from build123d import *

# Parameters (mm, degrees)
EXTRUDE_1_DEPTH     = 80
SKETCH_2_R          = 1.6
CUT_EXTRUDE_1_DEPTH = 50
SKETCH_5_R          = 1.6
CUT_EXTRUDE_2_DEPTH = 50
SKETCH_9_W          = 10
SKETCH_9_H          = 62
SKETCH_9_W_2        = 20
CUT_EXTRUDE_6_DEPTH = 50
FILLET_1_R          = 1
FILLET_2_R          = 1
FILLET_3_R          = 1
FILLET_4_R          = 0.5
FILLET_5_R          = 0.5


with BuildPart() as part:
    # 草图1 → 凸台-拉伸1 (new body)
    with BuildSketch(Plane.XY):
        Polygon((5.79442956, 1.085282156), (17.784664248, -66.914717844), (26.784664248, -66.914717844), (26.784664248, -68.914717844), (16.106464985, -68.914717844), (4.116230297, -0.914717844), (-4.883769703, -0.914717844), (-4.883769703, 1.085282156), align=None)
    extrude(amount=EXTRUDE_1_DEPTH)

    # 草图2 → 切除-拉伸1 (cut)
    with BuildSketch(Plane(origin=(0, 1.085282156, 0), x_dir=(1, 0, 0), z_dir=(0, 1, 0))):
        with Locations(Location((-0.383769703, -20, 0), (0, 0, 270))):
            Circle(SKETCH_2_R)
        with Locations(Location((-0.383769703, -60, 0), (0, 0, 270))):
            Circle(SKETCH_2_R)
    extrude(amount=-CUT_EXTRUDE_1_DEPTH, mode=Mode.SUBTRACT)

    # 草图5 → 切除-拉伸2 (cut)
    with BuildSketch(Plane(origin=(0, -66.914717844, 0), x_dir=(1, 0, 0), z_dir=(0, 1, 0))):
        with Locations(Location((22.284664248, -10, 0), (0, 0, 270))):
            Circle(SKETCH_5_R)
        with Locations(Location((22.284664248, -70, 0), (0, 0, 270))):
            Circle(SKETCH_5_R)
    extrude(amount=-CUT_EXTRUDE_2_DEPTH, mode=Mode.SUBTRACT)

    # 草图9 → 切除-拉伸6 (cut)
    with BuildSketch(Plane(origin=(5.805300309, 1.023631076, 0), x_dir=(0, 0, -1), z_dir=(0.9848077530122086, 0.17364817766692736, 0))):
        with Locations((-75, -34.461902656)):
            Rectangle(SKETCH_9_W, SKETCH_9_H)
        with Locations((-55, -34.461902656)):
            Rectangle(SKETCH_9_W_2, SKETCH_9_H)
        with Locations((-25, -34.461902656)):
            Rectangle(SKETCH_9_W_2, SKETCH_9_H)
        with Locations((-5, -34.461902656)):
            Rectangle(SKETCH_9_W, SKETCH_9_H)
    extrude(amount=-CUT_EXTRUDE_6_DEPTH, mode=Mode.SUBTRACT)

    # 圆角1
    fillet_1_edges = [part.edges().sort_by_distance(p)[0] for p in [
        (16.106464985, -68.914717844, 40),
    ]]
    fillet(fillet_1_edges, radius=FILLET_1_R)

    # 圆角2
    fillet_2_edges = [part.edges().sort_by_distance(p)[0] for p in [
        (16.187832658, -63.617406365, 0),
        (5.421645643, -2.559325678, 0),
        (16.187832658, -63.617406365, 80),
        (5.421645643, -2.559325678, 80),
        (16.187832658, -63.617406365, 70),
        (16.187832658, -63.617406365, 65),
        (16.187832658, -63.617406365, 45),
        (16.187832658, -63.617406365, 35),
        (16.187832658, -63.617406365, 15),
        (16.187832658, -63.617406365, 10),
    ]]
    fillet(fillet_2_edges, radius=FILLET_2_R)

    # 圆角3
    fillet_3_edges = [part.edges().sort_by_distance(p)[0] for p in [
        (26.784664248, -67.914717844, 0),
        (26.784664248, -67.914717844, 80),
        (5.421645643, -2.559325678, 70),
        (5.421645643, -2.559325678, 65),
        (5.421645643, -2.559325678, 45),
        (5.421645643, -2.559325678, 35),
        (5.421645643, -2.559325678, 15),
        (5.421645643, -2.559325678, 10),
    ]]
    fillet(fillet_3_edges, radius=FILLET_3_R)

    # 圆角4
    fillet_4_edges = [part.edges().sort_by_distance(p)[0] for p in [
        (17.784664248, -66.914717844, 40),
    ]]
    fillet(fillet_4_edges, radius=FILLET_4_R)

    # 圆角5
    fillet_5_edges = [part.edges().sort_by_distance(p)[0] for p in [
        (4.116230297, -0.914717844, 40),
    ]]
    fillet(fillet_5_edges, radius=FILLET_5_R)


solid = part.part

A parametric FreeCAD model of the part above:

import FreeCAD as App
import Part
import Sketcher
Q = App.Units.Quantity


def edges_at(feature, points):
    """Names of the edges that pass closest to the given points."""
    edges = feature.Shape.Edges
    near = lambda p: min(range(len(edges)), key=lambda i: edges[i].distToShape(Part.Vertex(*p))[0])
    return sorted({f"Edge{near(p) + 1}" for p in points})

doc = App.newDocument("Part")
body = doc.addObject("PartDesign::Body", "Body")

# Sketch on XY plane
sketch1 = body.newObject("Sketcher::SketchObject", "Sketch")
sketch1.AttachmentSupport = (doc.getObject("XY_Plane"), [""])
sketch1.MapMode = "FlatFace"
sketch1.addGeometry([
    Part.LineSegment(App.Vector(17.784664, -66.914718, 0), App.Vector(5.79443, 1.085282, 0)),  # 0
    Part.LineSegment(App.Vector(5.79443, 1.085282, 0), App.Vector(-4.88377, 1.085282, 0)),  # 1
    Part.LineSegment(App.Vector(-4.88377, 1.085282, 0), App.Vector(-4.88377, -0.914718, 0)),  # 2
    Part.LineSegment(App.Vector(-4.88377, -0.914718, 0), App.Vector(4.11623, -0.914718, 0)),  # 3
    Part.LineSegment(App.Vector(4.11623, -0.914718, 0), App.Vector(16.106465, -68.914718, 0)),  # 4
    Part.LineSegment(App.Vector(16.106465, -68.914718, 0), App.Vector(26.784664, -68.914718, 0)),  # 5
    Part.LineSegment(App.Vector(26.784664, -68.914718, 0), App.Vector(26.784664, -66.914718, 0)),  # 6
    Part.LineSegment(App.Vector(26.784664, -66.914718, 0), App.Vector(17.784664, -66.914718, 0)),  # 7
], False)
sketch1.addConstraint([
    Sketcher.Constraint("Coincident", 0, 2, 1, 1),
    Sketcher.Constraint("Coincident", 1, 2, 2, 1),
    Sketcher.Constraint("Coincident", 2, 2, 3, 1),
    Sketcher.Constraint("Coincident", 3, 2, 4, 1),
    Sketcher.Constraint("Coincident", 4, 2, 5, 1),
    Sketcher.Constraint("Coincident", 5, 2, 6, 1),
    Sketcher.Constraint("Coincident", 6, 2, 7, 1),
    Sketcher.Constraint("Coincident", 7, 2, 0, 1),
    Sketcher.Constraint("Horizontal", 1),
    Sketcher.Constraint("Vertical", 2),
    Sketcher.Constraint("Horizontal", 3),
    Sketcher.Constraint("Horizontal", 5),
    Sketcher.Constraint("Vertical", 6),
    Sketcher.Constraint("Horizontal", 7),
    Sketcher.Constraint("Parallel", 0, 4),
    Sketcher.Constraint("Equal", 1, 5),
    Sketcher.Constraint("Equal", 3, 7),
    Sketcher.Constraint("DistanceX", 3, 1, 3, 2, Q("9 mm")),
    Sketcher.Constraint("DistanceY", 2, 2, 2, 1, Q("2 mm")),
    Sketcher.Constraint("Angle", 0, Q("100 deg")),
    Sketcher.Constraint("DistanceY", 4, 2, 3, 2, Q("68 mm")),
    Sketcher.Constraint("DistanceX", 1, 2, 1, 1, Q("10.678199 mm")),
    Sketcher.Constraint("DistanceX", -1, 1, 0, 2, Q("5.79443 mm")),
    Sketcher.Constraint("DistanceY", -1, 1, 0, 2, Q("1.085282 mm")),
])
pad1 = body.newObject("PartDesign::Pad", "Pad")
pad1.Profile = sketch1
pad1.Length = 80

# Sketch on XZ plane
sketch2 = body.newObject("Sketcher::SketchObject", "Sketch001")
sketch2.AttachmentSupport = (doc.getObject("XZ_Plane"), [""])
sketch2.MapMode = "FlatFace"
sketch2.AttachmentOffset = App.Placement(App.Vector(0, 0, -1.085282), App.Rotation())
sketch2.addGeometry([
    Part.Circle(App.Vector(-0.38377, 20, 0), App.Vector(0, 0, 1), 1.6),
    Part.Circle(App.Vector(-0.38377, 60, 0), App.Vector(0, 0, 1), 1.6),
], False)
sketch2.addConstraint([
    Sketcher.Constraint("Equal", 0, 1),
    Sketcher.Constraint("Vertical", 0, 3, 1, 3),
    Sketcher.Constraint("Diameter", 0, Q("3.2 mm")),
    Sketcher.Constraint("DistanceY", -1, 1, 0, 3, Q("20 mm")),
    Sketcher.Constraint("DistanceY", -1, 1, 1, 3, Q("60 mm")),
    Sketcher.Constraint("DistanceX", 0, 3, -1, 1, Q("0.38377 mm")),
])
pocket1 = body.newObject("PartDesign::Pocket", "Pocket")
pocket1.Profile = sketch2
pocket1.Length = 50
pocket1.Reversed = True

# Sketch on XZ plane
sketch3 = body.newObject("Sketcher::SketchObject", "Sketch002")
sketch3.AttachmentSupport = (doc.getObject("XZ_Plane"), [""])
sketch3.MapMode = "FlatFace"
sketch3.AttachmentOffset = App.Placement(App.Vector(0, 0, 66.914718), App.Rotation())
sketch3.addGeometry([
    Part.Circle(App.Vector(22.284664, 10, 0), App.Vector(0, 0, 1), 1.6),
    Part.Circle(App.Vector(22.284664, 70, 0), App.Vector(0, 0, 1), 1.6),
], False)
sketch3.addConstraint([
    Sketcher.Constraint("Equal", 0, 1),
    Sketcher.Constraint("Vertical", 0, 3, 1, 3),
    Sketcher.Constraint("Diameter", 0, Q("3.2 mm")),
    Sketcher.Constraint("DistanceY", -1, 1, 0, 3, Q("10 mm")),
    Sketcher.Constraint("DistanceY", -1, 1, 1, 3, Q("70 mm")),
    Sketcher.Constraint("DistanceX", -1, 1, 0, 3, Q("22.284664 mm")),
])
pocket2 = body.newObject("PartDesign::Pocket", "Pocket001")
pocket2.Profile = sketch3
pocket2.Length = 50
pocket2.Reversed = True

# Sketch on an angled plane
sketch4 = body.newObject("Sketcher::SketchObject", "Sketch003")
sketch4.Placement = App.Placement(App.Vector(5.8053, 1.023631, 0), App.Rotation(App.Vector(0, 0, -1), App.Vector(-0.173648178, 0.984807753, 0), App.Vector(0.984807753, 0.173648178, 0), "ZXY"))
sketch4.addGeometry([
    Part.LineSegment(App.Vector(-80, -3.461903, 0), App.Vector(-80, -65.461903, 0)),  # 0
    Part.LineSegment(App.Vector(-80, -65.461903, 0), App.Vector(-70, -65.461903, 0)),  # 1
    Part.LineSegment(App.Vector(-70, -65.461903, 0), App.Vector(-70, -3.461903, 0)),  # 2
    Part.LineSegment(App.Vector(-70, -3.461903, 0), App.Vector(-80, -3.461903, 0)),  # 3
    Part.LineSegment(App.Vector(-65, -3.461903, 0), App.Vector(-65, -65.461903, 0)),  # 4
    Part.LineSegment(App.Vector(-65, -65.461903, 0), App.Vector(-45, -65.461903, 0)),  # 5
    Part.LineSegment(App.Vector(-45, -65.461903, 0), App.Vector(-45, -3.461903, 0)),  # 6
    Part.LineSegment(App.Vector(-45, -3.461903, 0), App.Vector(-65, -3.461903, 0)),  # 7
    Part.LineSegment(App.Vector(-35, -3.461903, 0), App.Vector(-35, -65.461903, 0)),  # 8
    Part.LineSegment(App.Vector(-35, -65.461903, 0), App.Vector(-15, -65.461903, 0)),  # 9
    Part.LineSegment(App.Vector(-15, -65.461903, 0), App.Vector(-15, -3.461903, 0)),  # 10
    Part.LineSegment(App.Vector(-15, -3.461903, 0), App.Vector(-35, -3.461903, 0)),  # 11
    Part.LineSegment(App.Vector(-10, -3.461903, 0), App.Vector(-10, -65.461903, 0)),  # 12
    Part.LineSegment(App.Vector(-10, -65.461903, 0), App.Vector(0, -65.461903, 0)),  # 13
    Part.LineSegment(App.Vector(0, -65.461903, 0), App.Vector(0, -3.461903, 0)),  # 14
    Part.LineSegment(App.Vector(0, -3.461903, 0), App.Vector(-10, -3.461903, 0)),  # 15
], False)
sketch4.addConstraint([
    Sketcher.Constraint("Coincident", 0, 2, 1, 1),
    Sketcher.Constraint("Coincident", 1, 2, 2, 1),
    Sketcher.Constraint("Coincident", 2, 2, 3, 1),
    Sketcher.Constraint("Coincident", 3, 2, 0, 1),
    Sketcher.Constraint("Coincident", 4, 2, 5, 1),
    Sketcher.Constraint("Coincident", 5, 2, 6, 1),
    Sketcher.Constraint("Coincident", 6, 2, 7, 1),
    Sketcher.Constraint("Coincident", 7, 2, 4, 1),
    Sketcher.Constraint("Coincident", 8, 2, 9, 1),
    Sketcher.Constraint("Coincident", 9, 2, 10, 1),
    Sketcher.Constraint("Coincident", 10, 2, 11, 1),
    Sketcher.Constraint("Coincident", 11, 2, 8, 1),
    Sketcher.Constraint("Coincident", 12, 2, 13, 1),
    Sketcher.Constraint("Coincident", 13, 2, 14, 1),
    Sketcher.Constraint("Coincident", 14, 2, 15, 1),
    Sketcher.Constraint("Coincident", 15, 2, 12, 1),
    Sketcher.Constraint("Vertical", 0),
    Sketcher.Constraint("Horizontal", 1),
    Sketcher.Constraint("Vertical", 2),
    Sketcher.Constraint("Horizontal", 3),
    Sketcher.Constraint("Vertical", 4),
    Sketcher.Constraint("Horizontal", 5),
    Sketcher.Constraint("Vertical", 6),
    Sketcher.Constraint("Horizontal", 7),
    Sketcher.Constraint("Vertical", 8),
    Sketcher.Constraint("Horizontal", 9),
    Sketcher.Constraint("Vertical", 10),
    Sketcher.Constraint("Horizontal", 11),
    Sketcher.Constraint("Vertical", 12),
    Sketcher.Constraint("Horizontal", 13),
    Sketcher.Constraint("Vertical", 14),
    Sketcher.Constraint("Horizontal", 15),
    Sketcher.Constraint("PointOnObject", 13, 2, -2),
    Sketcher.Constraint("Horizontal", 1, 2, 4, 2),
    Sketcher.Constraint("Horizontal", 3, 2, 6, 2),
    Sketcher.Constraint("Horizontal", 5, 2, 8, 2),
    Sketcher.Constraint("Horizontal", 7, 2, 10, 2),
    Sketcher.Constraint("Horizontal", 9, 2, 12, 2),
    Sketcher.Constraint("Horizontal", 11, 2, 14, 2),
    Sketcher.Constraint("Equal", 7, 9),
    Sketcher.Constraint("Equal", 3, 13),
    Sketcher.Constraint("DistanceX", 1, 1, 1, 2, Q("10 mm")),
    Sketcher.Constraint("DistanceX", 5, 1, 5, 2, Q("20 mm")),
    Sketcher.Constraint("DistanceY", 0, 2, 0, 1, Q("62 mm")),
    Sketcher.Constraint("DistanceX", 0, 2, -1, 1, Q("80 mm")),
    Sketcher.Constraint("DistanceX", 4, 2, -1, 1, Q("65 mm")),
    Sketcher.Constraint("DistanceX", 8, 2, -1, 1, Q("35 mm")),
    Sketcher.Constraint("DistanceY", 0, 2, -1, 1, Q("65.461903 mm")),
])
pocket3 = body.newObject("PartDesign::Pocket", "Pocket002")
pocket3.Profile = sketch4
pocket3.Length = 50
doc.recompute()

fillet = body.newObject("PartDesign::Fillet", "Fillet")
fillet.Base = (pocket3, edges_at(pocket3, [(16.106, -68.915, 40)]))
fillet.Radius = 1
doc.recompute()

fillet2 = body.newObject("PartDesign::Fillet", "Fillet001")
fillet2.Base = (fillet, edges_at(fillet, [
    (16.188, -63.617, 0),
    (5.422, -2.559, 0),
    (16.188, -63.617, 80),
    (5.422, -2.559, 80),
    (16.188, -63.617, 70),
    (16.188, -63.617, 65),
    (16.188, -63.617, 45),
    (16.188, -63.617, 35),
    (16.188, -63.617, 15),
    (16.188, -63.617, 10),
]))
fillet2.Radius = 1
doc.recompute()

fillet3 = body.newObject("PartDesign::Fillet", "Fillet002")
fillet3.Base = (fillet2, edges_at(fillet2, [
    (26.785, -67.915, 0),
    (26.785, -67.915, 80),
    (5.422, -2.559, 70),
    (5.422, -2.559, 65),
    (5.422, -2.559, 45),
    (5.422, -2.559, 35),
    (5.422, -2.559, 15),
    (5.422, -2.559, 10),
]))
fillet3.Radius = 1
doc.recompute()

fillet4 = body.newObject("PartDesign::Fillet", "Fillet003")
fillet4.Base = (fillet3, edges_at(fillet3, [(17.785, -66.915, 40)]))
fillet4.Radius = 0.5
doc.recompute()

fillet5 = body.newObject("PartDesign::Fillet", "Fillet004")
fillet5.Base = (fillet4, edges_at(fillet4, [(4.116, -0.915, 40)]))
fillet5.Radius = 0.5

doc.recompute()
